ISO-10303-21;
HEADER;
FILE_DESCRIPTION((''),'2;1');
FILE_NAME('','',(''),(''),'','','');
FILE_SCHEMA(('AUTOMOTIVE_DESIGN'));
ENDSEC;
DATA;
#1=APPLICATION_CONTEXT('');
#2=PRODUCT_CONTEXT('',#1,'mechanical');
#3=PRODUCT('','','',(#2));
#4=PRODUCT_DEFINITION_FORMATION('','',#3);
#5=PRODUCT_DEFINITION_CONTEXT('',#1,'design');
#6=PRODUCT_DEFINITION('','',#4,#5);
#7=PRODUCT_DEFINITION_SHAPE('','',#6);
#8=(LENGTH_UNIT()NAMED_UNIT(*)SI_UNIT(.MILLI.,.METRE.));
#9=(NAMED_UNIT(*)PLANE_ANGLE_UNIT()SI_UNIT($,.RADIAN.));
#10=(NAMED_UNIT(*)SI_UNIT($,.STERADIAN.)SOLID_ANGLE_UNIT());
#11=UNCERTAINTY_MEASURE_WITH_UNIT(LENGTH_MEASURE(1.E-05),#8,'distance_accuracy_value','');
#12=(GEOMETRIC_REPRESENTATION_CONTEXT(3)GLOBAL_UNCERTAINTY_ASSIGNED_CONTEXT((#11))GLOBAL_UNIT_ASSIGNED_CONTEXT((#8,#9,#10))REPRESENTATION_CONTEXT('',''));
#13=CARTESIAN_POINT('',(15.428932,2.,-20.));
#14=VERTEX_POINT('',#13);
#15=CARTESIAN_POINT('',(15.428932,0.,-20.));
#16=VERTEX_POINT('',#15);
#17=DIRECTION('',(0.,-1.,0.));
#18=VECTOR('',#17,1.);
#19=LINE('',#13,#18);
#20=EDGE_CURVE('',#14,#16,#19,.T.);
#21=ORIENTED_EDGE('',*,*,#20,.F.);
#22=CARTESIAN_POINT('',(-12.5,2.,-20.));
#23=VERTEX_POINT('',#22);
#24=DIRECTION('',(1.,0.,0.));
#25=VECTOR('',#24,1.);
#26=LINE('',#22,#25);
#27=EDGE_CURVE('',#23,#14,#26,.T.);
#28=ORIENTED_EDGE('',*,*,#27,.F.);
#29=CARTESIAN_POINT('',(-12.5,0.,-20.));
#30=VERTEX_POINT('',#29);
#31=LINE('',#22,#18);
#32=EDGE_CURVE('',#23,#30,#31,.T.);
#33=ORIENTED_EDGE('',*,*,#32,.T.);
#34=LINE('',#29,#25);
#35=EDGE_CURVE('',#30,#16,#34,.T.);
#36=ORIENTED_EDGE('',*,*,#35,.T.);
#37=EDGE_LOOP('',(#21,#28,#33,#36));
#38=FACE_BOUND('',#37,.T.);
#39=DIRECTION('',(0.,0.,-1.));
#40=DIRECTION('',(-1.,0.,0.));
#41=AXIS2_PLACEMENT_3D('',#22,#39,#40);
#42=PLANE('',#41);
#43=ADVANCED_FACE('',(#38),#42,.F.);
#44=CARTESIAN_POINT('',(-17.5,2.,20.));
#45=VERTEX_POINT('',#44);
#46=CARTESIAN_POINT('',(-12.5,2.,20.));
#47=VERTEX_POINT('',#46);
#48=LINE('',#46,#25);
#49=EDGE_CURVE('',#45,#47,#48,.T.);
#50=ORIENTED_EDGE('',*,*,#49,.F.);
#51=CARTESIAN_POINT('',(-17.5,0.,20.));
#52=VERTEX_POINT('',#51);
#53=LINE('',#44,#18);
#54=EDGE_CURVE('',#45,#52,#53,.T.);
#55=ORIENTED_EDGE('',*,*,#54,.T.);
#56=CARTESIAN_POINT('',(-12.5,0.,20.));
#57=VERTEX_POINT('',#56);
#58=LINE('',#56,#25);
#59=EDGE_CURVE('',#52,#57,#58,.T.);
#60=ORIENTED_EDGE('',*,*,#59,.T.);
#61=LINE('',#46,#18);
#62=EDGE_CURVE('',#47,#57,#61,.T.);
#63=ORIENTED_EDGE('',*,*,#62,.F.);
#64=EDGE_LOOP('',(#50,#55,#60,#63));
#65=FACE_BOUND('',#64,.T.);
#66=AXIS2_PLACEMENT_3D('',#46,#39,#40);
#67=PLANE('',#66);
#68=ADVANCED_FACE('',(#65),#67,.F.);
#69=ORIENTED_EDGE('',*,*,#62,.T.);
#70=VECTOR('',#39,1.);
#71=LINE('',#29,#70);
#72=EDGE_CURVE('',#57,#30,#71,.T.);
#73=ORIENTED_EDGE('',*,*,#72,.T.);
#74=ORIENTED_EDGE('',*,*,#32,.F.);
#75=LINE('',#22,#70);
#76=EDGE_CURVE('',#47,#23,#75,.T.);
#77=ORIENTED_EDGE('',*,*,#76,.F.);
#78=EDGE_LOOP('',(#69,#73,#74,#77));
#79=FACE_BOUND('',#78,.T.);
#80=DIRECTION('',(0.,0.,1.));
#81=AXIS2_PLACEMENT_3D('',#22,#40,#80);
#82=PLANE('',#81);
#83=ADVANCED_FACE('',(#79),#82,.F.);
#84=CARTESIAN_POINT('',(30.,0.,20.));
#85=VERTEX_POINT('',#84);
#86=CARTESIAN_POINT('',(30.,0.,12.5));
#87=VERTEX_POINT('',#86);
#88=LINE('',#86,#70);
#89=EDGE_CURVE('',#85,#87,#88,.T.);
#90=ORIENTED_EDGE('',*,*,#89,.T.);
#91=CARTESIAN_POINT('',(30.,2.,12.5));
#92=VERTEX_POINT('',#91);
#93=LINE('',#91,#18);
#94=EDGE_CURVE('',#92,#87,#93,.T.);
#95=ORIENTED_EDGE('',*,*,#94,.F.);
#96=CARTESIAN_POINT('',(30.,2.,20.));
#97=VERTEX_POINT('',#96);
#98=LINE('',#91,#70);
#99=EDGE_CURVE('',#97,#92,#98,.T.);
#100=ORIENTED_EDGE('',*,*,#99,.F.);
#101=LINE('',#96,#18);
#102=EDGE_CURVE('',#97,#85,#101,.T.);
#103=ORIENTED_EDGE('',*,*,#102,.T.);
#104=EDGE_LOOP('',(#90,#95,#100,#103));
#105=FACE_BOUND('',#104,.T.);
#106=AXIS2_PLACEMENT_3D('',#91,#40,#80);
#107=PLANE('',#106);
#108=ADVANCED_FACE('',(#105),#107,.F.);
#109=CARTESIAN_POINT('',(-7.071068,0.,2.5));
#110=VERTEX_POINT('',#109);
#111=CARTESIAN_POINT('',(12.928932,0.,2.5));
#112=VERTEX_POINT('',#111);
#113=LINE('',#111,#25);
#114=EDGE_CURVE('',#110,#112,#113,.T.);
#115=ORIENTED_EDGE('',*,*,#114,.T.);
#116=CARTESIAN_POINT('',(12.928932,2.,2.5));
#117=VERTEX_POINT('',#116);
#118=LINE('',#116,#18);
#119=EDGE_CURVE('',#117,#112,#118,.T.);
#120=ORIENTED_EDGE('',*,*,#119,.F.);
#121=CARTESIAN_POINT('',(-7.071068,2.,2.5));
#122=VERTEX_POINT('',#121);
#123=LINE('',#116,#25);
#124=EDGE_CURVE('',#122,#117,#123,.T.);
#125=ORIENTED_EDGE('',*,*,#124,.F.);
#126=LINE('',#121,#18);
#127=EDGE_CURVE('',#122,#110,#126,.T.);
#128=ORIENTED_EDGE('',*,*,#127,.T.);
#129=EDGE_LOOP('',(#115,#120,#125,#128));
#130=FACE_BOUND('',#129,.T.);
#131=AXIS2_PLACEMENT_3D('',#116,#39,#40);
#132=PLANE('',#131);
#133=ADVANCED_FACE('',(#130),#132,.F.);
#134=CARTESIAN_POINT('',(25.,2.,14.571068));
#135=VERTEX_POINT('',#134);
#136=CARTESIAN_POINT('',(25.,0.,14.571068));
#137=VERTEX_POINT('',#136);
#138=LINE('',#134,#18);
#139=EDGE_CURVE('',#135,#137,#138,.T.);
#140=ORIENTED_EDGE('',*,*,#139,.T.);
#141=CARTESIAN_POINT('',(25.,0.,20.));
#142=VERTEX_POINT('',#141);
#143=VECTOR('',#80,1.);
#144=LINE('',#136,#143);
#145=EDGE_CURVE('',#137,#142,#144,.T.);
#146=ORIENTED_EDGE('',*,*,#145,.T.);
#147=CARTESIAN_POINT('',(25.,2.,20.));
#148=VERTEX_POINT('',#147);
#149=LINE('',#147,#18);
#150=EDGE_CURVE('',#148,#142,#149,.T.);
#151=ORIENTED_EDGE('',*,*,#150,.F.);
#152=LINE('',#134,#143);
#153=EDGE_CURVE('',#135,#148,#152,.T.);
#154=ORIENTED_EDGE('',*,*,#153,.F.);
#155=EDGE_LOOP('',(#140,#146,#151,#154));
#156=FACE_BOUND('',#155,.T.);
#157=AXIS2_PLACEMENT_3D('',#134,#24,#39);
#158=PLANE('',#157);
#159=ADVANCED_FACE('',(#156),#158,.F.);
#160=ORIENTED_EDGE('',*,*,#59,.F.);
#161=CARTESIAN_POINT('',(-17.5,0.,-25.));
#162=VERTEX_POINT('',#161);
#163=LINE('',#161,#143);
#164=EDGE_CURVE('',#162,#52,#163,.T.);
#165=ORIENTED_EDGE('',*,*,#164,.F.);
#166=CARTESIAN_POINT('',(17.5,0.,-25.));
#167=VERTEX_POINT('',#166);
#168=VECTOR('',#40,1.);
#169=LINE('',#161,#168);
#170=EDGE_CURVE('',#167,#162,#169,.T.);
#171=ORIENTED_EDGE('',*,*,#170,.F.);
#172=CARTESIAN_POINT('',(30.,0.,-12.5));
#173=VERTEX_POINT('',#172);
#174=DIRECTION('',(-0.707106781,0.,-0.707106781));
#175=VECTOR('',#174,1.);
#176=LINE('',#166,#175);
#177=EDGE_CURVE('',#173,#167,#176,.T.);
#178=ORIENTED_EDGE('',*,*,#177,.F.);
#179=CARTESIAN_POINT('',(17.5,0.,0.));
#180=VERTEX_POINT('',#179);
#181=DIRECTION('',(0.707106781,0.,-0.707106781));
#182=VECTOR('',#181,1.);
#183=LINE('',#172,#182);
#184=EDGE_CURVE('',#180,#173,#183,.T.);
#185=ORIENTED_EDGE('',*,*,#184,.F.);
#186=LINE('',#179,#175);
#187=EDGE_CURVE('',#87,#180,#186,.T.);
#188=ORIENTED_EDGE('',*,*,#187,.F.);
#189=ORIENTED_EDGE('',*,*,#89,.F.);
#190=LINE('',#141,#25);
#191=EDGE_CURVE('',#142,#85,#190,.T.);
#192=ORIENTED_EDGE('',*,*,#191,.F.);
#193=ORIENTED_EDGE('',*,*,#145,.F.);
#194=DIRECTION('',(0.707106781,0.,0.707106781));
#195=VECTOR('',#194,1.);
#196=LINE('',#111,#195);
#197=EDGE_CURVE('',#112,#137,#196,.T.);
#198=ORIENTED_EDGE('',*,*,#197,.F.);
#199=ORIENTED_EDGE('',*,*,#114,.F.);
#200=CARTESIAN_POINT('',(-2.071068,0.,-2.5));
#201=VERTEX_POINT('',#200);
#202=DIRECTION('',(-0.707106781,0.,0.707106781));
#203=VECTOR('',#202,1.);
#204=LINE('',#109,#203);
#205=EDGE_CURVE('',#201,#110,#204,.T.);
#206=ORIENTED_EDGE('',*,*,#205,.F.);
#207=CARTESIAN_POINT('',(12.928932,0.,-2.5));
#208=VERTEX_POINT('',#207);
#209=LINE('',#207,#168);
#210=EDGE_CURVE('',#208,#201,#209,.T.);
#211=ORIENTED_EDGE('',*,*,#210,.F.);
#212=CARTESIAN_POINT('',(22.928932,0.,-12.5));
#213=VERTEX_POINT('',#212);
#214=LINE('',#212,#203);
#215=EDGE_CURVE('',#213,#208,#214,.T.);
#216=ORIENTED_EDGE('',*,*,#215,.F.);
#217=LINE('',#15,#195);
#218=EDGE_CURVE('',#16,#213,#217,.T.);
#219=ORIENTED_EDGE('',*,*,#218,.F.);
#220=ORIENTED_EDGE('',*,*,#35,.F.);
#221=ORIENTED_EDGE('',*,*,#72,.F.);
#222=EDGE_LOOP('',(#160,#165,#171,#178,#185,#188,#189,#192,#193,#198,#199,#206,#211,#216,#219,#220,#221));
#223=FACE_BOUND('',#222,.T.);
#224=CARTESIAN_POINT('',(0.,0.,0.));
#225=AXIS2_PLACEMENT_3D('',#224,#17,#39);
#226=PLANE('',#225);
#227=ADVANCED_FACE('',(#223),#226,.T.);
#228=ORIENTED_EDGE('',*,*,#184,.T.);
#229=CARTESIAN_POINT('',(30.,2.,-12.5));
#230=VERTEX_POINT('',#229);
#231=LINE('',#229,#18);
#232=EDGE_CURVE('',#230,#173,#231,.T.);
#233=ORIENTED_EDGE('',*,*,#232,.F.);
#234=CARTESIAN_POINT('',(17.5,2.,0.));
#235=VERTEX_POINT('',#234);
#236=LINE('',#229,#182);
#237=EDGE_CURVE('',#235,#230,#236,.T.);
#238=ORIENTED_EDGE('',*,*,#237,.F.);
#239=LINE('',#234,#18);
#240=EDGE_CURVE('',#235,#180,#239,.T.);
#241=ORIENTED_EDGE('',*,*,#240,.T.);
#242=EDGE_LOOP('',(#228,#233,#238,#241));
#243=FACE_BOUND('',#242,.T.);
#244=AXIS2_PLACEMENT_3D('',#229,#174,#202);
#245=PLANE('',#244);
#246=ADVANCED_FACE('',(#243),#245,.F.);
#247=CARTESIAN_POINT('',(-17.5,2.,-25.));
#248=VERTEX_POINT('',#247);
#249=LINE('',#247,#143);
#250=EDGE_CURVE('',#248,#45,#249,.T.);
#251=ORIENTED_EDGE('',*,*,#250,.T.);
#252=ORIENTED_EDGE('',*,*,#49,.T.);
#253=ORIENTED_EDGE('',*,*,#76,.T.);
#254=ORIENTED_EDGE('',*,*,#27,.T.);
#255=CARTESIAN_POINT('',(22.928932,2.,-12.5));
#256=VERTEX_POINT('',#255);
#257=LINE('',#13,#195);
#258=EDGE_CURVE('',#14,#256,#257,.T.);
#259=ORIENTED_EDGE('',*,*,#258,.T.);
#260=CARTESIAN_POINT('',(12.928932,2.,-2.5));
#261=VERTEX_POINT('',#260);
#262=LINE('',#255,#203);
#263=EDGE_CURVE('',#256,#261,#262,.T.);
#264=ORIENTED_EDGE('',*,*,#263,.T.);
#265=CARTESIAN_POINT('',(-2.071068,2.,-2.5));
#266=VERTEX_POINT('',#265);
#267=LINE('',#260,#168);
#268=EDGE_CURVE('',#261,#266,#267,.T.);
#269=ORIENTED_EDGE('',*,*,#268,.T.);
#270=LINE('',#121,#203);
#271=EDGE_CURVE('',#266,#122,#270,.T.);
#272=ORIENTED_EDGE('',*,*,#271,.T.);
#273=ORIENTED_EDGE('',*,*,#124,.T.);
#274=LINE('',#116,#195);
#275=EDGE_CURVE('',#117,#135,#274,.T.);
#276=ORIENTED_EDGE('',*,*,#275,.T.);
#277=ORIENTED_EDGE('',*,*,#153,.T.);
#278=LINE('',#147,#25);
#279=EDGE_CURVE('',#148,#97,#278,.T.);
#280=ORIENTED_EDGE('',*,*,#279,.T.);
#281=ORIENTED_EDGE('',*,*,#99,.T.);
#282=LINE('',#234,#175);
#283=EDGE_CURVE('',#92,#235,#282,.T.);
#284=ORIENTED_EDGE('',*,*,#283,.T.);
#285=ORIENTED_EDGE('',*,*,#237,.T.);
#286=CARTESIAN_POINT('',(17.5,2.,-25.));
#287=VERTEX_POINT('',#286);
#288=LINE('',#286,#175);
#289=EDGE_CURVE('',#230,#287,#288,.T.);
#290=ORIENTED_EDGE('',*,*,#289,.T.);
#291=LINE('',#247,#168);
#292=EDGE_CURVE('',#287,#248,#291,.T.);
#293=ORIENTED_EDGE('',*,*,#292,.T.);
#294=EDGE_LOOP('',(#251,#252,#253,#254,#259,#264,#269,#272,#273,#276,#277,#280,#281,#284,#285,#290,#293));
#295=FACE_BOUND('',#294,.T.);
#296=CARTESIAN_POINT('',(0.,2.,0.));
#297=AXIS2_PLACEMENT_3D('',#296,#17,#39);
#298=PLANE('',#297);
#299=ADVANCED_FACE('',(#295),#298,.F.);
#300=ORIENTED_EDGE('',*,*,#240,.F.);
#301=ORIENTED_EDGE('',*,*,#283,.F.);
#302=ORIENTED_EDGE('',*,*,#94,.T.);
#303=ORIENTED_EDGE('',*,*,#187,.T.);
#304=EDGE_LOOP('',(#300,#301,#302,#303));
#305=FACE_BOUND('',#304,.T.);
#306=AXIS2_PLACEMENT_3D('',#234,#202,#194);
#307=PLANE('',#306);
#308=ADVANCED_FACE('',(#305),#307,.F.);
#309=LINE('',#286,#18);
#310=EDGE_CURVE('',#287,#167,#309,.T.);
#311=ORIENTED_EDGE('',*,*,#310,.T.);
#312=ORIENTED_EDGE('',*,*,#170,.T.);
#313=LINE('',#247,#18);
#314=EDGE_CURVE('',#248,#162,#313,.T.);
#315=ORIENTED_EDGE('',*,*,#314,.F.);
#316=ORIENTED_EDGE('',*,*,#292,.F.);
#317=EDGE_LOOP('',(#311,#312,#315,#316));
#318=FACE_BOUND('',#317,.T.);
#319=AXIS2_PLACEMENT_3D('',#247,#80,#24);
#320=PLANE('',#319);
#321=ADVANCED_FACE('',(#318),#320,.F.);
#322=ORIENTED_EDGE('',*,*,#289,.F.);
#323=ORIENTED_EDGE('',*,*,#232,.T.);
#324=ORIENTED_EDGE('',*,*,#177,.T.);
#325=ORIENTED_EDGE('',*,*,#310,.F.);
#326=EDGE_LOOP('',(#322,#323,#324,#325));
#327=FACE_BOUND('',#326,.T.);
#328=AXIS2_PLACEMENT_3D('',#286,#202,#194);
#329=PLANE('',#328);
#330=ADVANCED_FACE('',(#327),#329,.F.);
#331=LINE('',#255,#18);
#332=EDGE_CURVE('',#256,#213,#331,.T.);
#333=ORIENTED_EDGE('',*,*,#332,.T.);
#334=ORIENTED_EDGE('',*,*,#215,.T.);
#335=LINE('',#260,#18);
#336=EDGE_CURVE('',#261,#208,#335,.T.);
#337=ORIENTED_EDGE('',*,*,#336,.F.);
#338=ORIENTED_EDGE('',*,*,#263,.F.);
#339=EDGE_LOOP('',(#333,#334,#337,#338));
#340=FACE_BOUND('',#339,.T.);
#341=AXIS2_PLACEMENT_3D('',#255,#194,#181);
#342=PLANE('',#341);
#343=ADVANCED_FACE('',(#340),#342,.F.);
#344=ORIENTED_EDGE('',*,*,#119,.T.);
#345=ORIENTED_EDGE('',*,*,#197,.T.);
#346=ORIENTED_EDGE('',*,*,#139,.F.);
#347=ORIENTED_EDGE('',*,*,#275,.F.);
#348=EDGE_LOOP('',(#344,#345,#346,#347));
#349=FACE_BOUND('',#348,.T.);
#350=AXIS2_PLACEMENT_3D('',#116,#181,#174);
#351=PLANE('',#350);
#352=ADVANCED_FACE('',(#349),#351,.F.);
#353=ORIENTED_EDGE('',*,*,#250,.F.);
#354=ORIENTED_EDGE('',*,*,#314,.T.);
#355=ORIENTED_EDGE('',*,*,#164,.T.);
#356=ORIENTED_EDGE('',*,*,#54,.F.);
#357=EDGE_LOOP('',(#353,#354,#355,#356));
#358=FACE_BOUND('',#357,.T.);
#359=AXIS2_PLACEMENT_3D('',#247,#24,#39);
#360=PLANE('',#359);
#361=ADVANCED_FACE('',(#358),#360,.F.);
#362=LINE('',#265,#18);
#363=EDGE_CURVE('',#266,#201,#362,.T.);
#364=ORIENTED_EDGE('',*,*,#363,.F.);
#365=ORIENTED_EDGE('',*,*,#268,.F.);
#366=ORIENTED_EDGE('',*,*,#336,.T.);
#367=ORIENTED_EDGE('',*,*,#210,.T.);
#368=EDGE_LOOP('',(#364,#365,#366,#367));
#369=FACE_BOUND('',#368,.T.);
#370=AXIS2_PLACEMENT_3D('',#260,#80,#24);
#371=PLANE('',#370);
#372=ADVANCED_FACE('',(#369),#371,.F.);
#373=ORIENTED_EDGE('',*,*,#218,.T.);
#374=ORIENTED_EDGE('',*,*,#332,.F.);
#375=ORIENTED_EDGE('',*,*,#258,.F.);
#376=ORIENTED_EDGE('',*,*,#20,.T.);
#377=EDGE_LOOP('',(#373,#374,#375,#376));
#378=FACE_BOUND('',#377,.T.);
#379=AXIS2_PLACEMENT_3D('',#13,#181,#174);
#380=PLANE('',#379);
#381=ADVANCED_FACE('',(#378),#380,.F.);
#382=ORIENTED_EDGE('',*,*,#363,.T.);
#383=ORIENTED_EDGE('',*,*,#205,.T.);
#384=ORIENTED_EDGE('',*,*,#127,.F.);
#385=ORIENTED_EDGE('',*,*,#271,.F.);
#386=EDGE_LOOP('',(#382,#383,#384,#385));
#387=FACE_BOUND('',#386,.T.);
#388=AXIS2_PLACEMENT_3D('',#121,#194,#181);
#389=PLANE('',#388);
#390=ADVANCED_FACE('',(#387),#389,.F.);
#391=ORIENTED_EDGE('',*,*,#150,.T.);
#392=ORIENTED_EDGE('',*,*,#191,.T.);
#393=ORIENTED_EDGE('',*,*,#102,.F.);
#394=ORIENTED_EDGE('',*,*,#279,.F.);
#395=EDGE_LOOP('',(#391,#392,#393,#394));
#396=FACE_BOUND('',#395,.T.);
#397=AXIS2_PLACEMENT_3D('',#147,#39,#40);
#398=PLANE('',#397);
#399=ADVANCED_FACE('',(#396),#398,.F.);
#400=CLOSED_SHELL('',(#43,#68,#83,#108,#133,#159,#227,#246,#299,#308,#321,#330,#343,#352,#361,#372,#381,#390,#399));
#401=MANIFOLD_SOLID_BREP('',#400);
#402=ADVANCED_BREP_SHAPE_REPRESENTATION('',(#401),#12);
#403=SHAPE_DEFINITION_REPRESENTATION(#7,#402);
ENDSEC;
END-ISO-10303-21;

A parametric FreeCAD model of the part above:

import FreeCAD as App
import Part
import Sketcher

doc = App.newDocument("Part")
body = doc.addObject("PartDesign::Body", "Body")

# Sketch on XZ plane
sketch1 = doc.addObject("Sketcher::SketchObject", "Sketch")
body.addObject(sketch1)
sketch1.AttachmentSupport = (doc.XZ_Plane, [""])
sketch1.MapMode = "FlatFace"
sketch1.addGeometry(Part.LineSegment(App.Vector(-12, -20, 0), App.Vector(15, -20, 0)), False)
sketch1.addGeometry(Part.LineSegment(App.Vector(15, -20, 0), App.Vector(23, -12, 0)), False)
sketch1.addGeometry(Part.LineSegment(App.Vector(23, -12, 0), App.Vector(13, -2, 0)), False)
sketch1.addGeometry(Part.LineSegment(App.Vector(13, -2, 0), App.Vector(-2, -2, 0)), False)
sketch1.addGeometry(Part.LineSegment(App.Vector(-2, -2, 0), App.Vector(-7, 2, 0)), False)
sketch1.addGeometry(Part.LineSegment(App.Vector(-7, 2, 0), App.Vector(13, 2, 0)), False)
sketch1.addGeometry(Part.LineSegment(App.Vector(13, 2, 0), App.Vector(25, 15, 0)), False)
sketch1.addGeometry(Part.LineSegment(App.Vector(25, 15, 0), App.Vector(25, 20, 0)), False)
sketch1.addGeometry(Part.LineSegment(App.Vector(25, 20, 0), App.Vector(30, 20, 0)), False)
sketch1.addGeometry(Part.LineSegment(App.Vector(30, 20, 0), App.Vector(30, 12, 0)), False)
sketch1.addGeometry(Part.LineSegment(App.Vector(30, 12, 0), App.Vector(18, 0, 0)), False)
sketch1.addGeometry(Part.LineSegment(App.Vector(18, 0, 0), App.Vector(30, -12, 0)), False)
sketch1.addGeometry(Part.LineSegment(App.Vector(30, -12, 0), App.Vector(18, -25, 0)), False)
sketch1.addGeometry(Part.LineSegment(App.Vector(18, -25, 0), App.Vector(-18, -25, 0)), False)
sketch1.addGeometry(Part.LineSegment(App.Vector(-18, -25, 0), App.Vector(-18, 20, 0)), False)
sketch1.addGeometry(Part.LineSegment(App.Vector(-18, 20, 0), App.Vector(-12, 20, 0)), False)
sketch1.addGeometry(Part.LineSegment(App.Vector(-12, 20, 0), App.Vector(-12, -20, 0)), False)
sketch1.addConstraint(Sketcher.Constraint("Coincident", 0, 2, 1, 1))
sketch1.addConstraint(Sketcher.Constraint("Coincident", 1, 2, 2, 1))
sketch1.addConstraint(Sketcher.Constraint("Coincident", 2, 2, 3, 1))
sketch1.addConstraint(Sketcher.Constraint("Coincident", 3, 2, 4, 1))
sketch1.addConstraint(Sketcher.Constraint("Coincident", 4, 2, 5, 1))
sketch1.addConstraint(Sketcher.Constraint("Coincident", 5, 2, 6, 1))
sketch1.addConstraint(Sketcher.Constraint("Coincident", 6, 2, 7, 1))
sketch1.addConstraint(Sketcher.Constraint("Coincident", 7, 2, 8, 1))
sketch1.addConstraint(Sketcher.Constraint("Coincident", 8, 2, 9, 1))
sketch1.addConstraint(Sketcher.Constraint("Coincident", 9, 2, 10, 1))
sketch1.addConstraint(Sketcher.Constraint("Coincident", 10, 2, 11, 1))
sketch1.addConstraint(Sketcher.Constraint("Coincident", 11, 2, 12, 1))
sketch1.addConstraint(Sketcher.Constraint("Coincident", 12, 2, 13, 1))
sketch1.addConstraint(Sketcher.Constraint("Coincident", 13, 2, 14, 1))
sketch1.addConstraint(Sketcher.Constraint("Coincident", 14, 2, 15, 1))
sketch1.addConstraint(Sketcher.Constraint("Coincident", 15, 2, 16, 1))
sketch1.addConstraint(Sketcher.Constraint("Coincident", 16, 2, 0, 1))
sketch1.addConstraint(Sketcher.Constraint("Horizontal", 0))
sketch1.addConstraint(Sketcher.Constraint("Horizontal", 3))
sketch1.addConstraint(Sketcher.Constraint("Horizontal", 5))
sketch1.addConstraint(Sketcher.Constraint("Vertical", 7))
sketch1.addConstraint(Sketcher.Constraint("Horizontal", 8))
sketch1.addConstraint(Sketcher.Constraint("Vertical", 9))
sketch1.addConstraint(Sketcher.Constraint("Horizontal", 13))
sketch1.addConstraint(Sketcher.Constraint("Vertical", 14))
sketch1.addConstraint(Sketcher.Constraint("Horizontal", 15))
sketch1.addConstraint(Sketcher.Constraint("Vertical", 16))
sketch1.addConstraint(Sketcher.Constraint("Symmetric", 2, 2, 5, 2, -1))
sketch1.addConstraint(Sketcher.Constraint("Symmetric", 9, 2, 11, 2, -1))
sketch1.addConstraint(Sketcher.Constraint("PointOnObject", 10, 2, -1))
sketch1.addConstraint(Sketcher.Constraint("Perpendicular", 1, 2))
sketch1.addConstraint(Sketcher.Constraint("Parallel", 2, 4))
sketch1.addConstraint(Sketcher.Constraint("Perpendicular", 4, 6))
sketch1.addConstraint(Sketcher.Constraint("Parallel", 6, 10))
sketch1.addConstraint(Sketcher.Constraint("Perpendicular", 10, 11))
sketch1.addConstraint(Sketcher.Constraint("Perpendicular", 11, 12))
sketch1.addConstraint(Sketcher.Constraint("Horizontal", 1, 2, 11, 2))
sketch1.addConstraint(Sketcher.Constraint("Horizontal", 8, 2, 14, 2))
sketch1.addConstraint(Sketcher.Constraint("Vertical", 10, 2, 12, 2))
sketch1.addConstraint(Sketcher.Constraint("Equal", 8, 15))
sketch1.addConstraint(Sketcher.Constraint("DistanceX", 3, 2, 3, 1, 15.0))
sketch1.addConstraint(Sketcher.Constraint("DistanceX", 5, 1, 5, 2, 20.0))
sketch1.addConstraint(Sketcher.Constraint("DistanceX", 8, 1, 8, 2, 5.0))
sketch1.addConstraint(Sketcher.Constraint("DistanceX", 13, 2, 13, 1, 35.0))
sketch1.addConstraint(Sketcher.Constraint("DistanceY", 14, 1, 14, 2, 45.0))
sketch1.addConstraint(Sketcher.Constraint("DistanceY", 16, 2, 16, 1, 40.0))
sketch1.addConstraint(Sketcher.Constraint("DistanceY", 9, 2, 9, 1, 7.5))
sketch1.addConstraint(Sketcher.Constraint("DistanceX", -1, 1, 6, 2, 25.0))
sketch1.addConstraint(Sketcher.Constraint("DistanceX", 0, 1, 0, 2, 27.928932))
pad1 = doc.addObject("PartDesign::Pad", "Pad")
body.addObject(pad1)
pad1.Profile = sketch1
pad1.Length = 2
pad1.Reversed = True

doc.recompute()
